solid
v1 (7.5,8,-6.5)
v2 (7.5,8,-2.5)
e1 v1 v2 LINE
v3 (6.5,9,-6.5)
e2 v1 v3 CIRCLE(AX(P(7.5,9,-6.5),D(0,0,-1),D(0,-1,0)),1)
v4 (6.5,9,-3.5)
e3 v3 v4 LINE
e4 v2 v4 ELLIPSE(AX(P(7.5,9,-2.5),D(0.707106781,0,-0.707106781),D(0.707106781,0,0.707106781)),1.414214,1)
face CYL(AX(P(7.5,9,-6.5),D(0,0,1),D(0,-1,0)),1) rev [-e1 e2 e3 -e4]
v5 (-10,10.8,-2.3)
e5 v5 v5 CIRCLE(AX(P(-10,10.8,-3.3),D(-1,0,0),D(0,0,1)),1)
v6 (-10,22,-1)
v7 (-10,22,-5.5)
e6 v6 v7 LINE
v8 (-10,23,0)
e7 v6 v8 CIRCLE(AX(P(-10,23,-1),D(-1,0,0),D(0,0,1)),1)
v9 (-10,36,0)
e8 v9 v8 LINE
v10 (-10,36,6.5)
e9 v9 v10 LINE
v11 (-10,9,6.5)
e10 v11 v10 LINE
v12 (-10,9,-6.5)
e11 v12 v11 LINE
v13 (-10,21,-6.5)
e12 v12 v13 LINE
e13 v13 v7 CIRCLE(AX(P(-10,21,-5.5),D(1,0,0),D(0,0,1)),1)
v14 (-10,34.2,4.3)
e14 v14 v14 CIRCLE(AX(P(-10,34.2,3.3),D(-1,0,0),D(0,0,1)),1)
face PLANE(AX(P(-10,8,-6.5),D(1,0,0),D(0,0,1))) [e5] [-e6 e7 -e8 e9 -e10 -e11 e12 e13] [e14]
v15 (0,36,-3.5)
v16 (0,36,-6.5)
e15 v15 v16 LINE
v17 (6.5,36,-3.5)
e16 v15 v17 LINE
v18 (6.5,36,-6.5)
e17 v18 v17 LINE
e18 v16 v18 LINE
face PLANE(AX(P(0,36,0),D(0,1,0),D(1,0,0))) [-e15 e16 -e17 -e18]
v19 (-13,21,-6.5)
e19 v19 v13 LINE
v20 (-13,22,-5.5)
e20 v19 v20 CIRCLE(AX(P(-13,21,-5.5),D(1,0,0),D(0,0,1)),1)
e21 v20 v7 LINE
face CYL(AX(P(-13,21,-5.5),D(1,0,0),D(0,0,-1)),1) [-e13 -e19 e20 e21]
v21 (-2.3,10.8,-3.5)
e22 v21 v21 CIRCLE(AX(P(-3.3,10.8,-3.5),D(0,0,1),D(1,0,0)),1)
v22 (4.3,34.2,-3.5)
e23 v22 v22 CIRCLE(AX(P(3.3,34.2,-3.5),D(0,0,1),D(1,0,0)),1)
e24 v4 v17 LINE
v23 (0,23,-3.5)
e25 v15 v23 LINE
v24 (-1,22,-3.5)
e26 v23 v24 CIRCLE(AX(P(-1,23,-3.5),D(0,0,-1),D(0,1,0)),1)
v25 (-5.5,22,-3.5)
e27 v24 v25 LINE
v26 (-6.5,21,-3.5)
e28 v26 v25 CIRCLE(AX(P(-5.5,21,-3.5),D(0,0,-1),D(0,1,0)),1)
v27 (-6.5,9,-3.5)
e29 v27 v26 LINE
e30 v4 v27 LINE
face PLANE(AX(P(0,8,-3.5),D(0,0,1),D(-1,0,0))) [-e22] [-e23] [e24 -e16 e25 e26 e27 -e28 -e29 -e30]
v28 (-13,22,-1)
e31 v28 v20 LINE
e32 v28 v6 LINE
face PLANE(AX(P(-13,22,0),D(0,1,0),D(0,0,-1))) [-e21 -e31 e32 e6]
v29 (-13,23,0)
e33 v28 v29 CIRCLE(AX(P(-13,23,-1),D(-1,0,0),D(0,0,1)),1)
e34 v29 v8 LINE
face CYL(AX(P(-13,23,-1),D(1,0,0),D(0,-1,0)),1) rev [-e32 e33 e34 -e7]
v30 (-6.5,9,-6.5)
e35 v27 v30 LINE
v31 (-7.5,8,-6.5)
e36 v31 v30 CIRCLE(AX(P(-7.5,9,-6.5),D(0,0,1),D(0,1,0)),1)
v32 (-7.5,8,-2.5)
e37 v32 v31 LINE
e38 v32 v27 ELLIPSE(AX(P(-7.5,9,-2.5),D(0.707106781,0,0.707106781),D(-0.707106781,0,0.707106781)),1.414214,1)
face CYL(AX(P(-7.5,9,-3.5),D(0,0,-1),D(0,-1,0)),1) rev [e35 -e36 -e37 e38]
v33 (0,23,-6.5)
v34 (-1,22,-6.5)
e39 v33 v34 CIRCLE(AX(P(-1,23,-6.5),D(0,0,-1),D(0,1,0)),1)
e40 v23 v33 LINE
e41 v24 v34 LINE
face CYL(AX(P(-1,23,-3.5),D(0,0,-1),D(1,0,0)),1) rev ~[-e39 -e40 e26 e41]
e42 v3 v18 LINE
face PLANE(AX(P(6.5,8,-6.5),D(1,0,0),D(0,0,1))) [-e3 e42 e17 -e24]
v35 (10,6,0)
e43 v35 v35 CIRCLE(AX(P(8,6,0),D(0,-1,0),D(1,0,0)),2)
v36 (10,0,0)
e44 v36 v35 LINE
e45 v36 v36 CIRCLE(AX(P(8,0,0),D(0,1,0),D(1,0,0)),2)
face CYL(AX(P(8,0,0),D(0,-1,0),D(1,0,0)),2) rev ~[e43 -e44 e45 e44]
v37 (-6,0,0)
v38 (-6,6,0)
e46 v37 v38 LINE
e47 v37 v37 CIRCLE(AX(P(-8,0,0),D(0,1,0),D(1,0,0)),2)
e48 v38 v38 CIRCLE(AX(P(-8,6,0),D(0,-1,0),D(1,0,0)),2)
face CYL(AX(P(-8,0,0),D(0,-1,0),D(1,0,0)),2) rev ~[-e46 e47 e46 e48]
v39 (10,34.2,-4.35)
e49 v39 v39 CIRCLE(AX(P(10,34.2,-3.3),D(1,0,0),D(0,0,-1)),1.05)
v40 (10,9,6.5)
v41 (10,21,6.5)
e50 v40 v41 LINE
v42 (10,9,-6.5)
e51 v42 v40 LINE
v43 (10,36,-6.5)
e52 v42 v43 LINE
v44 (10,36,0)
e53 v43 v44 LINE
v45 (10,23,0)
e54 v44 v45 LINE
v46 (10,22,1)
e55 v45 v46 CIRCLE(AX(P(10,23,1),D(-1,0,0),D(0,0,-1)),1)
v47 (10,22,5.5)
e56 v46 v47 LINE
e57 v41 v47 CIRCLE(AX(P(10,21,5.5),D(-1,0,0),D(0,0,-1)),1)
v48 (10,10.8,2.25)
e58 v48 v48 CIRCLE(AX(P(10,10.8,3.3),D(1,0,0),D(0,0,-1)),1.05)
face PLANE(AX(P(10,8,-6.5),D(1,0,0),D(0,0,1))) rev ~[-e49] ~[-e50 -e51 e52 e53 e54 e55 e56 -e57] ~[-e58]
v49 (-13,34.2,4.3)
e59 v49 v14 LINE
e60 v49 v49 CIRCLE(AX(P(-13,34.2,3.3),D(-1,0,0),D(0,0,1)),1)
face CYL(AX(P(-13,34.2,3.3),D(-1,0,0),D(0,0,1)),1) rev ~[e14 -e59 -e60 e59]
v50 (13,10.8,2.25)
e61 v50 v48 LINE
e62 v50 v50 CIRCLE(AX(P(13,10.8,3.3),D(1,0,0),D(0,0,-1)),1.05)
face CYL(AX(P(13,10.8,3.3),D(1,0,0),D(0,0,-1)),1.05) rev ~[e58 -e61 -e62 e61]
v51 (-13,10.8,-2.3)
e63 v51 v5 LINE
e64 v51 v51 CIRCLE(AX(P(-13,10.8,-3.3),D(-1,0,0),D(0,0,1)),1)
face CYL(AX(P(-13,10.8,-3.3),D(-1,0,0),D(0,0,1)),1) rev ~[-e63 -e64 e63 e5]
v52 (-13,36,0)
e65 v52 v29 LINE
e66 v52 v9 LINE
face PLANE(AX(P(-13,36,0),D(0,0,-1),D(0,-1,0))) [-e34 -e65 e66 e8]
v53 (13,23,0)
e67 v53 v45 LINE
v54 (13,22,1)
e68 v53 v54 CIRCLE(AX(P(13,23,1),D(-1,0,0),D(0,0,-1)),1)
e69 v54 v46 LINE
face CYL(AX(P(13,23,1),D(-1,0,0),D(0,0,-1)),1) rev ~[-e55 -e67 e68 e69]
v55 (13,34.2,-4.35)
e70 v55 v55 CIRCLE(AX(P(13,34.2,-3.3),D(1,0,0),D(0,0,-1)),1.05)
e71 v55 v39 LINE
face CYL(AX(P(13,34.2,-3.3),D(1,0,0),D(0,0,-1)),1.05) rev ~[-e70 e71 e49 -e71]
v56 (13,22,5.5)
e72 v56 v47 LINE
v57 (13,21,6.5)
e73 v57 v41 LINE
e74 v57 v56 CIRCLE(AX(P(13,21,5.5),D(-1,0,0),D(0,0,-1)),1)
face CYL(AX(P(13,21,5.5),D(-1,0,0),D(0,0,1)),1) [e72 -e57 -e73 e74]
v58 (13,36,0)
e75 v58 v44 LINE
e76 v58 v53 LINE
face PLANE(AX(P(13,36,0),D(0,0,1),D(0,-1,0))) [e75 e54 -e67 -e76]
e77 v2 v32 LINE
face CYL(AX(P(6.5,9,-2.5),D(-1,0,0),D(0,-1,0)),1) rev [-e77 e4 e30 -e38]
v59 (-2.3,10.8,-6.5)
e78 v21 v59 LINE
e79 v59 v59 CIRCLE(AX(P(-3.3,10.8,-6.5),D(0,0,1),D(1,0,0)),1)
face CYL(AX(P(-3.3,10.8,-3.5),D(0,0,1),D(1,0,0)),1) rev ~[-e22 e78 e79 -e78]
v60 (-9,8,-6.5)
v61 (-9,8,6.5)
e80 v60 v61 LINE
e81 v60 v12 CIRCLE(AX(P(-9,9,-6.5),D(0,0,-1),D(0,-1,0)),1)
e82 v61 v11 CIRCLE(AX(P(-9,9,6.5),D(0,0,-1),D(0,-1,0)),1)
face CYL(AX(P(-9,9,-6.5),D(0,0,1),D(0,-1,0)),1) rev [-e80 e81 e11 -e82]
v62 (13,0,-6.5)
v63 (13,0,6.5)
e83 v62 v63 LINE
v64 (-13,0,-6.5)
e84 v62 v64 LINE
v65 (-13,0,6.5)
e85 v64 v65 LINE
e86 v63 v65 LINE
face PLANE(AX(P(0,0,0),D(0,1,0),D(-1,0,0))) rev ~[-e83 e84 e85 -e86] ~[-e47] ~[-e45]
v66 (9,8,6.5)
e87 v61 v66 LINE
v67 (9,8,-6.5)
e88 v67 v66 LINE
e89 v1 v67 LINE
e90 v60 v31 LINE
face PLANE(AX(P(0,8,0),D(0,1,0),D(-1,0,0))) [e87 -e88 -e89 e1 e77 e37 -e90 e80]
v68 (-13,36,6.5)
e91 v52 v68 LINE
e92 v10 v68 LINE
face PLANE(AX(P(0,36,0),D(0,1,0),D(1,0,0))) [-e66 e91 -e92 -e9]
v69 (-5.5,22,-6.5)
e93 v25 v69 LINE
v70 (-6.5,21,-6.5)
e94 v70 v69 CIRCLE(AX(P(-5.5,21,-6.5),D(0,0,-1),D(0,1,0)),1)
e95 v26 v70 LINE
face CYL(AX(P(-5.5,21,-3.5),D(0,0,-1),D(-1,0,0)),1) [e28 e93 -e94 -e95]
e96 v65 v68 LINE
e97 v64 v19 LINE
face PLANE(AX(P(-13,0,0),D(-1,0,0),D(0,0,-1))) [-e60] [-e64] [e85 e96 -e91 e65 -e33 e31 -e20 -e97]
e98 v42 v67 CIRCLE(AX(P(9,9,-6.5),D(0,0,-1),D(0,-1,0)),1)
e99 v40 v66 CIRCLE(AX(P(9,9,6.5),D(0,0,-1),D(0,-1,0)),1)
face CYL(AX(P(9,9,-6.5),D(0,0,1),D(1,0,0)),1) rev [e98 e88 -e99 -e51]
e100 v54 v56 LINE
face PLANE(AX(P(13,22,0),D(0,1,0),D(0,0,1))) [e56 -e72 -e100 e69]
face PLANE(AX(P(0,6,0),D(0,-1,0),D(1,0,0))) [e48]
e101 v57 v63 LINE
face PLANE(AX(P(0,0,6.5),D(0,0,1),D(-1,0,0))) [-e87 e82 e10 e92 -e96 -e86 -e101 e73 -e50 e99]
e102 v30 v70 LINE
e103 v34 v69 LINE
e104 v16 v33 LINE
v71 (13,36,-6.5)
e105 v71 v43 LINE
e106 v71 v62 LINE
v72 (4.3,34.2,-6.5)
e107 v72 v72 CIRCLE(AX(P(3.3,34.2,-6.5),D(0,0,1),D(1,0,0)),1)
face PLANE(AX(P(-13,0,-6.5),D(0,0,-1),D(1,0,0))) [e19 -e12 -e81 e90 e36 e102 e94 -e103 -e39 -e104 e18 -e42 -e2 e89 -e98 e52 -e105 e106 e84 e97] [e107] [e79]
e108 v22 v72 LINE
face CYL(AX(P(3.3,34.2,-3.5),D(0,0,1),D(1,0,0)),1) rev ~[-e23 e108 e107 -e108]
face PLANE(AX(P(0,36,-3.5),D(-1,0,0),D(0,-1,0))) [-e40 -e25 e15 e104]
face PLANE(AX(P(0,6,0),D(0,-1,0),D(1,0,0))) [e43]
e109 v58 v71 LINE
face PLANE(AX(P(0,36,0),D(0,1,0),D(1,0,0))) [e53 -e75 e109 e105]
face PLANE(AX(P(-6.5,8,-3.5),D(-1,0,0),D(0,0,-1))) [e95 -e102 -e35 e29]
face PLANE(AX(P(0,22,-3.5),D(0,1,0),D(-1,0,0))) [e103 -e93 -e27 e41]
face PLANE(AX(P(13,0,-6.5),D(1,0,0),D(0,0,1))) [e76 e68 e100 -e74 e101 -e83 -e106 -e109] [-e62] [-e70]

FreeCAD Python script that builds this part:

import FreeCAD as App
import Part
import Sketcher

V = App.Vector
Q = App.Units.Quantity


def edges_at(feature, points):
    """Names of the edges that pass closest to the given points."""
    edges = feature.Shape.Edges
    near = lambda p: min(range(len(edges)), key=lambda i: edges[i].distToShape(Part.Vertex(*p))[0])
    return sorted({f"Edge{near(p) + 1}" for p in points})


def add_polygon(sketch, points):
    """Adds a closed chain of lines whose ends are joined by coincident constraints."""
    first, n = sketch.GeometryCount, len(points)
    for a, b in zip(points, points[1:] + points[:1]):
        sketch.addGeometry(Part.LineSegment(App.Vector(*a, 0), App.Vector(*b, 0)), False)
    for i in range(n):
        sketch.addConstraint(Sketcher.Constraint("Coincident", first + i, 2, first + (i + 1) % n, 1))

doc = App.newDocument("Part")
body = doc.addObject("PartDesign::Body", "Body")

# Sketch on XZ plane
sketch1 = body.newObject("Sketcher::SketchObject", "Sketch")
sketch1.AttachmentSupport = (doc.getObject("XZ_Plane"), [""])
sketch1.MapMode = "FlatFace"
add_polygon(sketch1, [(-13, -6), (-13, 6), (13, 6), (13, -6)])  # lines 0-3
sketch1.addConstraint(Sketcher.Constraint("Vertical", 0))
sketch1.addConstraint(Sketcher.Constraint("Horizontal", 1))
sketch1.addConstraint(Sketcher.Constraint("Vertical", 2))
sketch1.addConstraint(Sketcher.Constraint("Horizontal", 3))
sketch1.addConstraint(Sketcher.Constraint("Symmetric", 0, 2, 2, 2, -1, 1))
sketch1.addConstraint(Sketcher.Constraint("DistanceX", 1, 1, 1, 2, Q("26 mm")))
sketch1.addConstraint(Sketcher.Constraint("DistanceY", 0, 1, 0, 2, Q("13 mm")))
pad1 = body.newObject("PartDesign::Pad", "Pad")
pad1.Profile = sketch1
pad1.Length = 8
pad1.Reversed = True

# Sketch on XZ plane
sketch2 = body.newObject("Sketcher::SketchObject", "Sketch001")
sketch2.AttachmentSupport = (doc.getObject("XZ_Plane"), [""])
sketch2.MapMode = "FlatFace"
sketch2.AttachmentOffset = App.Placement(V(0, 0, -8), App.Rotation())
add_polygon(sketch2, [(-10, -6.5), (-13, -6.5), (-13, 6.5), (-10, 6.5)])  # lines 0-3
add_polygon(sketch2, [(-6.5, -6.5), (-6.5, -3.5), (6.5, -3.5), (6.5, -6.5)])  # lines 4-7
add_polygon(sketch2, [(10, -6.5), (10, 6.5), (13, 6.5), (13, -6.5)])  # lines 8-11
sketch2.addConstraint(Sketcher.Constraint("Horizontal", 0))
sketch2.addConstraint(Sketcher.Constraint("Vertical", 1))
sketch2.addConstraint(Sketcher.Constraint("Horizontal", 2))
sketch2.addConstraint(Sketcher.Constraint("Vertical", 3))
sketch2.addConstraint(Sketcher.Constraint("Vertical", 4))
sketch2.addConstraint(Sketcher.Constraint("Horizontal", 5))
sketch2.addConstraint(Sketcher.Constraint("Vertical", 6))
sketch2.addConstraint(Sketcher.Constraint("Horizontal", 7))
sketch2.addConstraint(Sketcher.Constraint("Vertical", 8))
sketch2.addConstraint(Sketcher.Constraint("Horizontal", 9))
sketch2.addConstraint(Sketcher.Constraint("Vertical", 10))
sketch2.addConstraint(Sketcher.Constraint("Horizontal", 11))
sketch2.addConstraint(Sketcher.Constraint("Symmetric", 3, 2, 8, 2, -1, 1))
sketch2.addConstraint(Sketcher.Constraint("Symmetric", 1, 2, 10, 2, -1, 1))
sketch2.addConstraint(Sketcher.Constraint("Horizontal", 3, 2, 6, 2))
sketch2.addConstraint(Sketcher.Constraint("Horizontal", 2, 2, 8, 2))
sketch2.addConstraint(Sketcher.Constraint("Equal", 7, 1))
sketch2.addConstraint(Sketcher.Constraint("Equal", 11, 4))
sketch2.addConstraint(Sketcher.Constraint("DistanceX", 0, 2, 0, 1, Q("3 mm")))
sketch2.addConstraint(Sketcher.Constraint("DistanceX", 5, 1, 5, 2, Q("13 mm")))
sketch2.addConstraint(Sketcher.Constraint("DistanceX", 0, 2, -1, 1, Q("13 mm")))
sketch2.addConstraint(Sketcher.Constraint("DistanceX", 4, 2, -1, 1, Q("6.5 mm")))
pad2 = body.newObject("PartDesign::Pad", "Pad001")
pad2.Profile = sketch2
pad2.Length = 28
pad2.Reversed = True

# Sketch on YZ plane
sketch3 = body.newObject("Sketcher::SketchObject", "Sketch002")
sketch3.AttachmentSupport = (doc.getObject("YZ_Plane"), [""])
sketch3.MapMode = "FlatFace"
sketch3.AttachmentOffset = App.Placement(V(0, 0, -13), App.Rotation())
add_polygon(sketch3, [(36, 0), (36, -6), (22, -6), (22, 0)])  # lines 0-3
sketch3.addConstraint(Sketcher.Constraint("Vertical", 0))
sketch3.addConstraint(Sketcher.Constraint("Horizontal", 1))
sketch3.addConstraint(Sketcher.Constraint("Vertical", 2))
sketch3.addConstraint(Sketcher.Constraint("Horizontal", 3))
sketch3.addConstraint(Sketcher.Constraint("PointOnObject", 2, 2, -1))
sketch3.addConstraint(Sketcher.Constraint("DistanceY", 0, 2, 0, 1, Q("6.5 mm")))
sketch3.addConstraint(Sketcher.Constraint("DistanceX", -1, 1, 1, 2, Q("22 mm")))
sketch3.addConstraint(Sketcher.Constraint("DistanceX", 1, 2, 1, 1, Q("14 mm")))
pocket1 = body.newObject("PartDesign::Pocket", "Pocket")
pocket1.Profile = sketch3
pocket1.Length = 3
pocket1.Reversed = True

# Sketch on YZ plane
sketch4 = body.newObject("Sketcher::SketchObject", "Sketch003")
sketch4.AttachmentSupport = (doc.getObject("YZ_Plane"), [""])
sketch4.MapMode = "FlatFace"
sketch4.AttachmentOffset = App.Placement(V(0, 0, 13), App.Rotation())
add_polygon(sketch4, [(22, 0), (36, 0), (36, 6), (22, 6)])  # lines 0-3
sketch4.addConstraint(Sketcher.Constraint("Horizontal", 0))
sketch4.addConstraint(Sketcher.Constraint("Vertical", 1))
sketch4.addConstraint(Sketcher.Constraint("Horizontal", 2))
sketch4.addConstraint(Sketcher.Constraint("Vertical", 3))
sketch4.addConstraint(Sketcher.Constraint("PointOnObject", 0, 2, -1))
sketch4.addConstraint(Sketcher.Constraint("DistanceY", 1, 1, 1, 2, Q("6.5 mm")))
sketch4.addConstraint(Sketcher.Constraint("DistanceX", -1, 1, 2, 2, Q("22 mm")))
sketch4.addConstraint(Sketcher.Constraint("DistanceX", 0, 1, 0, 2, Q("14 mm")))
pocket2 = body.newObject("PartDesign::Pocket", "Pocket001")
pocket2.Profile = sketch4
pocket2.Length = 3

# Sketch on XY plane
sketch5 = body.newObject("Sketcher::SketchObject", "Sketch004")
sketch5.AttachmentSupport = (doc.getObject("XY_Plane"), [""])
sketch5.MapMode = "FlatFace"
sketch5.AttachmentOffset = App.Placement(V(0, 0, -3.5), App.Rotation())
add_polygon(sketch5, [(-6, 36), (-6, 22), (0, 22), (0, 36)])  # lines 0-3
sketch5.addConstraint(Sketcher.Constraint("Vertical", 0))
sketch5.addConstraint(Sketcher.Constraint("Horizontal", 1))
sketch5.addConstraint(Sketcher.Constraint("Vertical", 2))
sketch5.addConstraint(Sketcher.Constraint("Horizontal", 3))
sketch5.addConstraint(Sketcher.Constraint("PointOnObject", 1, 2, -2))
sketch5.addConstraint(Sketcher.Constraint("DistanceX", 1, 1, 1, 2, Q("6.5 mm")))
sketch5.addConstraint(Sketcher.Constraint("DistanceY", -1, 1, 0, 2, Q("22 mm")))
sketch5.addConstraint(Sketcher.Constraint("DistanceY", 0, 2, 0, 1, Q("14 mm")))
pocket3 = body.newObject("PartDesign::Pocket", "Pocket002")
pocket3.Profile = sketch5
pocket3.Length = 3

# Sketch on YZ plane
sketch6 = body.newObject("Sketcher::SketchObject", "Sketch005")
sketch6.AttachmentSupport = (doc.getObject("YZ_Plane"), [""])
sketch6.MapMode = "FlatFace"
sketch6.AttachmentOffset = App.Placement(V(0, 0, 13), App.Rotation())
sketch6.addGeometry(Part.Circle(V(34.2, -3.3, 0), V(0, 0, 1), 1.1), False)
sketch6.addGeometry(Part.Circle(V(10.8, 3.3, 0), V(0, 0, 1), 1.1), False)
sketch6.addConstraint(Sketcher.Constraint("Equal", 0, 1))
sketch6.addConstraint(Sketcher.Constraint("Diameter", 0, Q("2.1 mm")))
sketch6.addConstraint(Sketcher.Constraint("DistanceY", 0, 3, -1, 1, Q("3.3 mm")))
sketch6.addConstraint(Sketcher.Constraint("DistanceY", -1, 1, 1, 3, Q("3.3 mm")))
sketch6.addConstraint(Sketcher.Constraint("DistanceX", -1, 1, 0, 3, Q("34.2 mm")))
sketch6.addConstraint(Sketcher.Constraint("DistanceX", -1, 1, 1, 3, Q("10.8 mm")))
pocket4 = body.newObject("PartDesign::Pocket", "Pocket003")
pocket4.Profile = sketch6
pocket4.Length = 3

# Sketch on YZ plane
sketch7 = body.newObject("Sketcher::SketchObject", "Sketch006")
sketch7.AttachmentSupport = (doc.getObject("YZ_Plane"), [""])
sketch7.MapMode = "FlatFace"
sketch7.AttachmentOffset = App.Placement(V(0, 0, -13), App.Rotation())
sketch7.addGeometry(Part.Circle(V(34.2, 3.3, 0), V(0, 0, 1), 1), False)
sketch7.addGeometry(Part.Circle(V(10.8, -3.3, 0), V(0, 0, 1), 1), False)
sketch7.addConstraint(Sketcher.Constraint("Equal", 0, 1))
sketch7.addConstraint(Sketcher.Constraint("Diameter", 0, Q("2 mm")))
sketch7.addConstraint(Sketcher.Constraint("DistanceY", -1, 1, 0, 3, Q("3.3 mm")))
sketch7.addConstraint(Sketcher.Constraint("DistanceY", 1, 3, -1, 1, Q("3.3 mm")))
sketch7.addConstraint(Sketcher.Constraint("DistanceX", -1, 1, 0, 3, Q("34.2 mm")))
sketch7.addConstraint(Sketcher.Constraint("DistanceX", -1, 1, 1, 3, Q("10.8 mm")))
pocket5 = body.newObject("PartDesign::Pocket", "Pocket004")
pocket5.Profile = sketch7
pocket5.Length = 3
pocket5.Reversed = True

# Sketch on XY plane
sketch8 = body.newObject("Sketcher::SketchObject", "Sketch007")
sketch8.AttachmentSupport = (doc.getObject("XY_Plane"), [""])
sketch8.MapMode = "FlatFace"
sketch8.AttachmentOffset = App.Placement(V(0, 0, -3.5), App.Rotation())
sketch8.addGeometry(Part.Circle(V(3.3, 34.2, 0), V(0, 0, 1), 1), False)
sketch8.addGeometry(Part.Circle(V(-3.3, 10.8, 0), V(0, 0, 1), 1), False)
sketch8.addConstraint(Sketcher.Constraint("Equal", 0, 1))
sketch8.addConstraint(Sketcher.Constraint("Diameter", 0, Q("2 mm")))
sketch8.addConstraint(Sketcher.Constraint("DistanceX", -1, 1, 0, 3, Q("3.3 mm")))
sketch8.addConstraint(Sketcher.Constraint("DistanceX", 1, 3, -1, 1, Q("3.3 mm")))
sketch8.addConstraint(Sketcher.Constraint("DistanceY", -1, 1, 0, 3, Q("34.2 mm")))
sketch8.addConstraint(Sketcher.Constraint("DistanceY", -1, 1, 1, 3, Q("10.8 mm")))
pocket6 = body.newObject("PartDesign::Pocket", "Pocket005")
pocket6.Profile = sketch8
pocket6.Length = 3

# Sketch on XZ plane
sketch9 = body.newObject("Sketcher::SketchObject", "Sketch008")
sketch9.AttachmentSupport = (doc.getObject("XZ_Plane"), [""])
sketch9.MapMode = "FlatFace"
sketch9.addGeometry(Part.Circle(V(-8, 0, 0), V(0, 0, 1), 2), False)
sketch9.addGeometry(Part.Circle(V(8, 0, 0), V(0, 0, 1), 2), False)
sketch9.addConstraint(Sketcher.Constraint("Equal", 0, 1))
sketch9.addConstraint(Sketcher.Constraint("Symmetric", 0, 3, 1, 3, -1, 1))
sketch9.addConstraint(Sketcher.Constraint("PointOnObject", 0, 3, -1))
sketch9.addConstraint(Sketcher.Constraint("Diameter", 0, Q("4 mm")))
sketch9.addConstraint(Sketcher.Constraint("DistanceX", 0, 3, 1, 3, Q("16 mm")))
pocket7 = body.newObject("PartDesign::Pocket", "Pocket006")
pocket7.Profile = sketch9
pocket7.Length = 6
doc.recompute()

fillet = body.newObject("PartDesign::Fillet", "Fillet")
fillet.Base = (pocket7, edges_at(pocket7, [
    (10, 8, 0),
    (-10, 8, 0),
    (11.5, 22, 6.5),
    (11.5, 22, 0),
    (-11.5, 22, -6.5),
    (-11.5, 22, 0),
    (-6.5, 22, -5),
    (0, 22, -5),
    (6.5, 8, -5),
    (0, 8, -3.5),
    (-6.5, 8, -5),
]))
fillet.Radius = 1

doc.recompute()
